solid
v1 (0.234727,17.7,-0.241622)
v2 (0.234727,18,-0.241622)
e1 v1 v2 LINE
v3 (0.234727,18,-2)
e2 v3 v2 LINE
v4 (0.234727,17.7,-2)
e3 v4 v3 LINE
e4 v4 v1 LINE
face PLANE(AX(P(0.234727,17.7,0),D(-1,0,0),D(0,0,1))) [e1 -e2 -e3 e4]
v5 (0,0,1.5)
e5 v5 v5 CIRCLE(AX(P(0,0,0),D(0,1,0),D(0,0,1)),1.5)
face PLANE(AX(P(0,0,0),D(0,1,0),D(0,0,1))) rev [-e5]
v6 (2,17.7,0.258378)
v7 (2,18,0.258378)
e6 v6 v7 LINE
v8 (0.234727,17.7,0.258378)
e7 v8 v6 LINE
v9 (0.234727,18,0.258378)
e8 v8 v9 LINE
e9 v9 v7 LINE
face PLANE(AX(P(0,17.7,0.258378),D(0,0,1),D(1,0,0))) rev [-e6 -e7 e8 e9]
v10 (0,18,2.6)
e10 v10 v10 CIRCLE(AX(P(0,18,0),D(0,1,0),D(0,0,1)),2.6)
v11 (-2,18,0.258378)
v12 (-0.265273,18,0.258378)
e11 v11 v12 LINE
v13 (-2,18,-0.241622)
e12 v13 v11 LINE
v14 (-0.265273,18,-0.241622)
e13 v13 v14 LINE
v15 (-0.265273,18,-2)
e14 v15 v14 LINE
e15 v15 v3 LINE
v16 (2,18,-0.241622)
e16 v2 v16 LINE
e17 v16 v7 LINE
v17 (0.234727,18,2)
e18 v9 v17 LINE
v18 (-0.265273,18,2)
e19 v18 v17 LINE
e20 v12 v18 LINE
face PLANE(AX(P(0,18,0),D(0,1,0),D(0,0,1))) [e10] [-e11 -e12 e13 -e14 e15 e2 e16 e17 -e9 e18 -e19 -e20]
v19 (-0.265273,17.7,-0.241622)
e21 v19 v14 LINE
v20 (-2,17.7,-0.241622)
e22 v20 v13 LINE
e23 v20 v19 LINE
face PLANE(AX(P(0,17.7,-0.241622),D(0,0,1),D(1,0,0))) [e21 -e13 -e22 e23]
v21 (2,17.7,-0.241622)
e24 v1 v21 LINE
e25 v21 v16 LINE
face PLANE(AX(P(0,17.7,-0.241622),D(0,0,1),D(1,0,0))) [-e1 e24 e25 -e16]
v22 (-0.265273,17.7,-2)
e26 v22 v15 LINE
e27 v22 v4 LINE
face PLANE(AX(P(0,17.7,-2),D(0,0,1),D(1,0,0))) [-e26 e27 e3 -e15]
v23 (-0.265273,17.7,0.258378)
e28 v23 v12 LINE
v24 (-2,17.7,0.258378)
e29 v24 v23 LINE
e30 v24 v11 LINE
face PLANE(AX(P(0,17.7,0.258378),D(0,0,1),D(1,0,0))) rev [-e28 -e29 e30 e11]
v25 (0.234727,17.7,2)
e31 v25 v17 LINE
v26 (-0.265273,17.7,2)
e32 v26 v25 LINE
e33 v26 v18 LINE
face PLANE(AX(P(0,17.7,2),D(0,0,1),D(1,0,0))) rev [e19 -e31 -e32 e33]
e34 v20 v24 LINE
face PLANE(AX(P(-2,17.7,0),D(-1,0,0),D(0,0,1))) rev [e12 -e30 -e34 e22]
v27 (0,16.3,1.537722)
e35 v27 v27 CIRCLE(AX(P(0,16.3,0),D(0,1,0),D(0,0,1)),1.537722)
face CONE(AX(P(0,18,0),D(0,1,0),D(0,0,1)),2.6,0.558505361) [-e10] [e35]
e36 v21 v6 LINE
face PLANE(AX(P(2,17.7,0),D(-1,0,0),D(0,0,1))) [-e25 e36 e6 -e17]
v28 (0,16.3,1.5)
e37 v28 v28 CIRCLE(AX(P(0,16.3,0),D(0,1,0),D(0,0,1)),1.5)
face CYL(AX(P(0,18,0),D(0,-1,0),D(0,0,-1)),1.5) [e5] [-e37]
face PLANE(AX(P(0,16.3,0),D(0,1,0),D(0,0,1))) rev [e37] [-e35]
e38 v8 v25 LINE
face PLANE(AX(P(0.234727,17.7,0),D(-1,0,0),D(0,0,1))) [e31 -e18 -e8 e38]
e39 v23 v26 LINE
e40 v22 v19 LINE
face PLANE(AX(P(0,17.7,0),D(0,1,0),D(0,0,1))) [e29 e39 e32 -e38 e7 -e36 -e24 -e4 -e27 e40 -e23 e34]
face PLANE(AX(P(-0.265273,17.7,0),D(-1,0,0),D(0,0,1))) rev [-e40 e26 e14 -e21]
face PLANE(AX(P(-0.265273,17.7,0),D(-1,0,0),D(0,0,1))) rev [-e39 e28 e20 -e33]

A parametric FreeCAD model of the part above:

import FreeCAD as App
import Part
import Sketcher


def add_polygon(sketch, points):
    """Adds a closed chain of lines whose ends are joined by coincident constraints."""
    first, n = sketch.GeometryCount, len(points)
    for a, b in zip(points, points[1:] + points[:1]):
        sketch.addGeometry(Part.LineSegment(App.Vector(*a, 0), App.Vector(*b, 0)), False)
    for i in range(n):
        sketch.addConstraint(Sketcher.Constraint("Coincident", first + i, 2, first + (i + 1) % n, 1))

doc = App.newDocument("Part")
body = doc.addObject("PartDesign::Body", "Body")

# Sketch on XZ plane
sketch1 = doc.addObject("Sketcher::SketchObject", "Sketch")
body.addObject(sketch1)
sketch1.AttachmentSupport = (doc.XZ_Plane, [""])
sketch1.MapMode = "FlatFace"
sketch1.addGeometry(Part.Circle(App.Vector(0, 0, 0), App.Vector(0, 0, 1), 1.5), False)
sketch1.addConstraint(Sketcher.Constraint("Coincident", 0, 3, -1, 1))
sketch1.addConstraint(Sketcher.Constraint("Diameter", 0, 3.0))
pad1 = doc.addObject("PartDesign::Pad", "Pad")
body.addObject(pad1)
pad1.Profile = sketch1
pad1.Length = 18
pad1.Reversed = True

# Sketch on XZ plane
sketch2 = doc.addObject("Sketcher::SketchObject", "Sketch001")
body.addObject(sketch2)
sketch2.AttachmentSupport = (doc.XZ_Plane, [""])
sketch2.MapMode = "FlatFace"
sketch2.AttachmentOffset = App.Placement(App.Vector(0, 0, -18), App.Rotation())
sketch2.addGeometry(Part.Circle(App.Vector(0, 0, 0), App.Vector(0, 0, 1), 2.6), False)
sketch2.addConstraint(Sketcher.Constraint("Coincident", 0, 3, -1, 1))
sketch2.addConstraint(Sketcher.Constraint("Diameter", 0, 5.2))
pad2 = doc.addObject("PartDesign::Pad", "Pad001")
body.addObject(pad2)
pad2.Profile = sketch2
pad2.Length = 1.7
pad2.TaperAngle = -32

# Sketch on XZ plane
sketch3 = doc.addObject("Sketcher::SketchObject", "Sketch002")
body.addObject(sketch3)
sketch3.AttachmentSupport = (doc.XZ_Plane, [""])
sketch3.MapMode = "FlatFace"
sketch3.AttachmentOffset = App.Placement(App.Vector(0, 0, -18), App.Rotation())
add_polygon(sketch3, [(-0.265273, -2), (-0.265273, -0.241622), (-2, -0.241622), (-2, 0.258378), (-0.265273, 0.258378), (-0.265273, 2), (0.234727, 2), (0.234727, 0.258378), (2, 0.258378), (2, -0.241622), (0.234727, -0.241622), (0.234727, -2)])  # lines 0-11
sketch3.addConstraint(Sketcher.Constraint("Vertical", 0))
sketch3.addConstraint(Sketcher.Constraint("Horizontal", 1))
sketch3.addConstraint(Sketcher.Constraint("Vertical", 2))
sketch3.addConstraint(Sketcher.Constraint("Horizontal", 3))
sketch3.addConstraint(Sketcher.Constraint("Vertical", 4))
sketch3.addConstraint(Sketcher.Constraint("Horizontal", 5))
sketch3.addConstraint(Sketcher.Constraint("Vertical", 6))
sketch3.addConstraint(Sketcher.Constraint("Horizontal", 7))
sketch3.addConstraint(Sketcher.Constraint("Vertical", 8))
sketch3.addConstraint(Sketcher.Constraint("Horizontal", 9))
sketch3.addConstraint(Sketcher.Constraint("Vertical", 10))
sketch3.addConstraint(Sketcher.Constraint("Horizontal", 11))
sketch3.addConstraint(Sketcher.Constraint("Symmetric", 2, 2, 7, 2, -2))
sketch3.addConstraint(Sketcher.Constraint("Symmetric", 5, 2, 10, 2, -1))
sketch3.addConstraint(Sketcher.Constraint("Horizontal", 1, 2, 8, 2))
sketch3.addConstraint(Sketcher.Constraint("Vertical", 0, 2, 3, 2))
sketch3.addConstraint(Sketcher.Constraint("Equal", 11, 2))
sketch3.addConstraint(Sketcher.Constraint("DistanceX", 5, 1, 5, 2, 0.5))
sketch3.addConstraint(Sketcher.Constraint("DistanceX", 1, 2, -1, 1, 2.0))
sketch3.addConstraint(Sketcher.Constraint("DistanceY", -1, 1, 4, 2, 2.0))
sketch3.addConstraint(Sketcher.Constraint("DistanceY", 0, 1, 0, 2, 1.758378))
sketch3.addConstraint(Sketcher.Constraint("DistanceX", 1, 2, 1, 1, 1.734727))
pocket1 = doc.addObject("PartDesign::Pocket", "Pocket")
body.addObject(pocket1)
pocket1.Profile = sketch3
pocket1.Length = 0.3
pocket1.Reversed = True

doc.recompute()
